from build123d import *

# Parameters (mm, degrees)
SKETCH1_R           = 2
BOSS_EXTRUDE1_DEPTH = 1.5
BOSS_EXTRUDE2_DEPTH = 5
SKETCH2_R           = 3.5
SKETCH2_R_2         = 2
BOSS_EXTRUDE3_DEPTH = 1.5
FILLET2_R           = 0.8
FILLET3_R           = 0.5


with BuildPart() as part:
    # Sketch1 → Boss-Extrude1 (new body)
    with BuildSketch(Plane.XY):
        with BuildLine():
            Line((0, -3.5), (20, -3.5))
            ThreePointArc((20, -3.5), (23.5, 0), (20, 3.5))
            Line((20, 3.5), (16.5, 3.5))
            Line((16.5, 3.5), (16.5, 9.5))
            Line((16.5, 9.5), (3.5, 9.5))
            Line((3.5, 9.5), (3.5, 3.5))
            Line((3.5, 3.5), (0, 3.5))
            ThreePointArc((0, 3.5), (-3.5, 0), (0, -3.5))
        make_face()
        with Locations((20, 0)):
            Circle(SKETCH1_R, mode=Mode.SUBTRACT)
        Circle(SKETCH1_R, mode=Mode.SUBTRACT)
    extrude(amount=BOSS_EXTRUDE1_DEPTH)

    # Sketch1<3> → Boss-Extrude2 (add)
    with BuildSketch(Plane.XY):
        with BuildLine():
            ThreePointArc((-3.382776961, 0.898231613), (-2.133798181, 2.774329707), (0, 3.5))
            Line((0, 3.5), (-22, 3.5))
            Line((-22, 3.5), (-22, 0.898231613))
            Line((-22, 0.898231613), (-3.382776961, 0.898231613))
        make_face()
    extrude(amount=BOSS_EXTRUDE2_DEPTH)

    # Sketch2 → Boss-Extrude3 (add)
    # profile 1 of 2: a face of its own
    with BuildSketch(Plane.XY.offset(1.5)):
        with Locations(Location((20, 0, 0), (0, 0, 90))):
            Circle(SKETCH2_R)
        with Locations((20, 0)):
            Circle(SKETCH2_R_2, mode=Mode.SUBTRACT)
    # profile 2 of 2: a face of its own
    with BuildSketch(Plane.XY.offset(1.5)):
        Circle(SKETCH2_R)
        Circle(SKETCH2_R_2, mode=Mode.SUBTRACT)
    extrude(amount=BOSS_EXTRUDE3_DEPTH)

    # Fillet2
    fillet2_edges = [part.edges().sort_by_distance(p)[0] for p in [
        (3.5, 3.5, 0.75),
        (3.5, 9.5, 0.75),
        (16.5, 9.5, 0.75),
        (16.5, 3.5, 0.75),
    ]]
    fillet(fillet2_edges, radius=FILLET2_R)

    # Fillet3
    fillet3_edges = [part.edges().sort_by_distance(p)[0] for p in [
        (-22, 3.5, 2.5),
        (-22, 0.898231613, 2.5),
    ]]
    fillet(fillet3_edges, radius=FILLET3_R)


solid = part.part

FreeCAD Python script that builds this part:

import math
import FreeCAD as App
import Part
import Sketcher


def edges_at(feature, points):
    """Names of the edges that pass closest to the given points."""
    edges = feature.Shape.Edges
    near = lambda p: min(range(len(edges)), key=lambda i: edges[i].distToShape(Part.Vertex(*p))[0])
    return sorted({f"Edge{near(p) + 1}" for p in points})

doc = App.newDocument("Part")
params = doc.addObject("Spreadsheet::Sheet", "Params")
for row, (alias, value) in enumerate([
    ("sketch1_diameter", "4 mm"),
    ("sketch1_radius", "3.5 mm"),
    ("sketch1_width", "20 mm"),
    ("sketch1_width2", "13 mm"),
    ("sketch1_height", "6 mm"),
    ("pad1_length", "1.5 mm"),
    ("sketch2_radius", "3.5 mm"),
    ("sketch2_width", "22 mm"),
    ("pad2_length", "5 mm"),
    ("sketch3_diameter", "7 mm"),
    ("sketch3_diameter2", "4 mm"),
    ("pad3_length", "1.5 mm"),
    ("fillet_radius", "0.8 mm"),
    ("fillet2_radius", "0.5 mm"),
], start=1):
    params.set(f"A{row}", alias)
    params.set(f"B{row}", "=" + value)
    params.setAlias(f"B{row}", alias)

body = doc.addObject("PartDesign::Body", "Body")

# Sketch on XY plane
sketch1 = body.newObject("Sketcher::SketchObject", "Sketch")
sketch1.AttachmentSupport = (doc.getObject("XY_Plane"), [""])
sketch1.MapMode = "FlatFace"
sketch1.addGeometry([
    Part.LineSegment(App.Vector(0, -3.5, 0), App.Vector(20, -3.5, 0)),  # 0
    Part.ArcOfCircle(Part.Circle(App.Vector(20, 0, 0), App.Vector(0, 0, 1), 3.5), math.radians(-90), math.radians(90)),  # 1
    Part.LineSegment(App.Vector(20, 3.5, 0), App.Vector(16.5, 3.5, 0)),  # 2
    Part.LineSegment(App.Vector(16.5, 3.5, 0), App.Vector(16.5, 9.5, 0)),  # 3
    Part.LineSegment(App.Vector(16.5, 9.5, 0), App.Vector(3.5, 9.5, 0)),  # 4
    Part.LineSegment(App.Vector(3.5, 9.5, 0), App.Vector(3.5, 3.5, 0)),  # 5
    Part.LineSegment(App.Vector(3.5, 3.5, 0), App.Vector(0, 3.5, 0)),  # 6
    Part.ArcOfCircle(Part.Circle(App.Vector(0, 0, 0), App.Vector(0, 0, 1), 3.5), math.radians(90), math.radians(270)),  # 7
    Part.Circle(App.Vector(0, 0, 0), App.Vector(0, 0, 1), 2),  # 8
    Part.Circle(App.Vector(20, 0, 0), App.Vector(0, 0, 1), 2),  # 9
], False)
sketch1.addConstraint([
    Sketcher.Constraint("Tangent", 0, 2, 1, 1),
    Sketcher.Constraint("Tangent", 1, 2, 2, 1),
    Sketcher.Constraint("Coincident", 2, 2, 3, 1),
    Sketcher.Constraint("Coincident", 3, 2, 4, 1),
    Sketcher.Constraint("Coincident", 4, 2, 5, 1),
    Sketcher.Constraint("Coincident", 5, 2, 6, 1),
    Sketcher.Constraint("Tangent", 6, 2, 7, 1),
    Sketcher.Constraint("Tangent", 7, 2, 0, 1),
    Sketcher.Constraint("Horizontal", 0),
    Sketcher.Constraint("Horizontal", 2),
    Sketcher.Constraint("Vertical", 3),
    Sketcher.Constraint("Horizontal", 4),
    Sketcher.Constraint("Vertical", 5),
    Sketcher.Constraint("Horizontal", 6),
    Sketcher.Constraint("Coincident", 7, 3, -1, 1),
    Sketcher.Constraint("Coincident", 8, 3, -1, 1),
    Sketcher.Constraint("Coincident", 9, 3, 1, 3),
    Sketcher.Constraint("Equal", 1, 7),
    Sketcher.Constraint("Equal", 8, 9),
    Sketcher.Constraint("Equal", 2, 6),
    Sketcher.Constraint("Diameter", 8, 4.0),
    Sketcher.Constraint("Radius", 1, 3.5),
    Sketcher.Constraint("DistanceX", 0, 1, 0, 2, 20.0),
    Sketcher.Constraint("DistanceX", 4, 2, 4, 1, 13.0),
    Sketcher.Constraint("DistanceY", 3, 1, 3, 2, 6.0),
])
sketch1.setExpression("Constraints[20]", "Params.sketch1_diameter")
sketch1.setExpression("Constraints[21]", "Params.sketch1_radius")
sketch1.setExpression("Constraints[22]", "Params.sketch1_width")
sketch1.setExpression("Constraints[23]", "Params.sketch1_width2")
sketch1.setExpression("Constraints[24]", "Params.sketch1_height")
pad1 = body.newObject("PartDesign::Pad", "Pad")
pad1.Profile = sketch1
pad1.setExpression("Length", "Params.pad1_length")

# Sketch on XY plane
sketch2 = body.newObject("Sketcher::SketchObject", "Sketch001")
sketch2.AttachmentSupport = (doc.getObject("XY_Plane"), [""])
sketch2.MapMode = "FlatFace"
sketch2.addGeometry([
    Part.ArcOfCircle(Part.Circle(App.Vector(0, 0, 0), App.Vector(0, 0, 1), 3.5), math.radians(90), math.radians(165)),
    Part.LineSegment(App.Vector(0, 3.5, 0), App.Vector(-22, 3.5, 0)),
    Part.LineSegment(App.Vector(-22, 3.5, 0), App.Vector(-22, 0.9, 0)),
    Part.LineSegment(App.Vector(-22, 0.9, 0), App.Vector(-3.4, 0.9, 0)),
], False)
sketch2.addConstraint([
    Sketcher.Constraint("Tangent", 0, 1, 1, 1),
    Sketcher.Constraint("Coincident", 1, 2, 2, 1),
    Sketcher.Constraint("Coincident", 2, 2, 3, 1),
    Sketcher.Constraint("Coincident", 3, 2, 0, 2),
    Sketcher.Constraint("Horizontal", 1),
    Sketcher.Constraint("Vertical", 2),
    Sketcher.Constraint("Horizontal", 3),
    Sketcher.Constraint("Coincident", 0, 3, -1, 1),
    Sketcher.Constraint("Radius", 0, 3.5),
    Sketcher.Constraint("DistanceX", 1, 2, 1, 1, 22.0),
    Sketcher.Constraint("DistanceY", 2, 2, 2, 1, 2.601768),
])
sketch2.setExpression("Constraints[8]", "Params.sketch2_radius")
sketch2.setExpression("Constraints[9]", "Params.sketch2_width")
pad2 = body.newObject("PartDesign::Pad", "Pad001")
pad2.Profile = sketch2
pad2.setExpression("Length", "Params.pad2_length")

# Sketch on XY plane
sketch3 = body.newObject("Sketcher::SketchObject", "Sketch002")
sketch3.AttachmentSupport = (doc.getObject("XY_Plane"), [""])
sketch3.MapMode = "FlatFace"
sketch3.AttachmentOffset = App.Placement(App.Vector(0, 0, 1.5), App.Rotation())
sketch3.addGeometry([
    Part.Circle(App.Vector(20, 0, 0), App.Vector(0, 0, 1), 3.5),
    Part.Circle(App.Vector(20, 0, 0), App.Vector(0, 0, 1), 2),
    Part.Circle(App.Vector(0, 0, 0), App.Vector(0, 0, 1), 3.5),
    Part.Circle(App.Vector(0, 0, 0), App.Vector(0, 0, 1), 2),
], False)
sketch3.addConstraint([
    Sketcher.Constraint("Coincident", 2, 3, -1, 1),
    Sketcher.Constraint("Coincident", 3, 3, -1, 1),
    Sketcher.Constraint("Coincident", 1, 3, 0, 3),
    Sketcher.Constraint("Equal", 0, 2),
    Sketcher.Constraint("Equal", 1, 3),
    Sketcher.Constraint("PointOnObject", 0, 3, -1),
    Sketcher.Constraint("Diameter", 0, 7.0),
    Sketcher.Constraint("Diameter", 1, 4.0),
    Sketcher.Constraint("DistanceX", -1, 1, 0, 3, 20.0),
])
sketch3.setExpression("Constraints[6]", "Params.sketch3_diameter")
sketch3.setExpression("Constraints[7]", "Params.sketch3_diameter2")
pad3 = body.newObject("PartDesign::Pad", "Pad002")
pad3.Profile = sketch3
pad3.setExpression("Length", "Params.pad3_length")
doc.recompute()

fillet = body.newObject("PartDesign::Fillet", "Fillet")
fillet.Base = (pad3, edges_at(pad3, [
    (3.5, 3.5, 0.75),
    (3.5, 9.5, 0.75),
    (16.5, 9.5, 0.75),
    (16.5, 3.5, 0.75),
]))
fillet.setExpression("Radius", "Params.fillet_radius")
doc.recompute()

fillet2 = body.newObject("PartDesign::Fillet", "Fillet001")
fillet2.Base = (fillet, edges_at(fillet, [(-22, 3.5, 2.5), (-22, 0.898, 2.5)]))
fillet2.setExpression("Radius", "Params.fillet2_radius")

doc.recompute()
